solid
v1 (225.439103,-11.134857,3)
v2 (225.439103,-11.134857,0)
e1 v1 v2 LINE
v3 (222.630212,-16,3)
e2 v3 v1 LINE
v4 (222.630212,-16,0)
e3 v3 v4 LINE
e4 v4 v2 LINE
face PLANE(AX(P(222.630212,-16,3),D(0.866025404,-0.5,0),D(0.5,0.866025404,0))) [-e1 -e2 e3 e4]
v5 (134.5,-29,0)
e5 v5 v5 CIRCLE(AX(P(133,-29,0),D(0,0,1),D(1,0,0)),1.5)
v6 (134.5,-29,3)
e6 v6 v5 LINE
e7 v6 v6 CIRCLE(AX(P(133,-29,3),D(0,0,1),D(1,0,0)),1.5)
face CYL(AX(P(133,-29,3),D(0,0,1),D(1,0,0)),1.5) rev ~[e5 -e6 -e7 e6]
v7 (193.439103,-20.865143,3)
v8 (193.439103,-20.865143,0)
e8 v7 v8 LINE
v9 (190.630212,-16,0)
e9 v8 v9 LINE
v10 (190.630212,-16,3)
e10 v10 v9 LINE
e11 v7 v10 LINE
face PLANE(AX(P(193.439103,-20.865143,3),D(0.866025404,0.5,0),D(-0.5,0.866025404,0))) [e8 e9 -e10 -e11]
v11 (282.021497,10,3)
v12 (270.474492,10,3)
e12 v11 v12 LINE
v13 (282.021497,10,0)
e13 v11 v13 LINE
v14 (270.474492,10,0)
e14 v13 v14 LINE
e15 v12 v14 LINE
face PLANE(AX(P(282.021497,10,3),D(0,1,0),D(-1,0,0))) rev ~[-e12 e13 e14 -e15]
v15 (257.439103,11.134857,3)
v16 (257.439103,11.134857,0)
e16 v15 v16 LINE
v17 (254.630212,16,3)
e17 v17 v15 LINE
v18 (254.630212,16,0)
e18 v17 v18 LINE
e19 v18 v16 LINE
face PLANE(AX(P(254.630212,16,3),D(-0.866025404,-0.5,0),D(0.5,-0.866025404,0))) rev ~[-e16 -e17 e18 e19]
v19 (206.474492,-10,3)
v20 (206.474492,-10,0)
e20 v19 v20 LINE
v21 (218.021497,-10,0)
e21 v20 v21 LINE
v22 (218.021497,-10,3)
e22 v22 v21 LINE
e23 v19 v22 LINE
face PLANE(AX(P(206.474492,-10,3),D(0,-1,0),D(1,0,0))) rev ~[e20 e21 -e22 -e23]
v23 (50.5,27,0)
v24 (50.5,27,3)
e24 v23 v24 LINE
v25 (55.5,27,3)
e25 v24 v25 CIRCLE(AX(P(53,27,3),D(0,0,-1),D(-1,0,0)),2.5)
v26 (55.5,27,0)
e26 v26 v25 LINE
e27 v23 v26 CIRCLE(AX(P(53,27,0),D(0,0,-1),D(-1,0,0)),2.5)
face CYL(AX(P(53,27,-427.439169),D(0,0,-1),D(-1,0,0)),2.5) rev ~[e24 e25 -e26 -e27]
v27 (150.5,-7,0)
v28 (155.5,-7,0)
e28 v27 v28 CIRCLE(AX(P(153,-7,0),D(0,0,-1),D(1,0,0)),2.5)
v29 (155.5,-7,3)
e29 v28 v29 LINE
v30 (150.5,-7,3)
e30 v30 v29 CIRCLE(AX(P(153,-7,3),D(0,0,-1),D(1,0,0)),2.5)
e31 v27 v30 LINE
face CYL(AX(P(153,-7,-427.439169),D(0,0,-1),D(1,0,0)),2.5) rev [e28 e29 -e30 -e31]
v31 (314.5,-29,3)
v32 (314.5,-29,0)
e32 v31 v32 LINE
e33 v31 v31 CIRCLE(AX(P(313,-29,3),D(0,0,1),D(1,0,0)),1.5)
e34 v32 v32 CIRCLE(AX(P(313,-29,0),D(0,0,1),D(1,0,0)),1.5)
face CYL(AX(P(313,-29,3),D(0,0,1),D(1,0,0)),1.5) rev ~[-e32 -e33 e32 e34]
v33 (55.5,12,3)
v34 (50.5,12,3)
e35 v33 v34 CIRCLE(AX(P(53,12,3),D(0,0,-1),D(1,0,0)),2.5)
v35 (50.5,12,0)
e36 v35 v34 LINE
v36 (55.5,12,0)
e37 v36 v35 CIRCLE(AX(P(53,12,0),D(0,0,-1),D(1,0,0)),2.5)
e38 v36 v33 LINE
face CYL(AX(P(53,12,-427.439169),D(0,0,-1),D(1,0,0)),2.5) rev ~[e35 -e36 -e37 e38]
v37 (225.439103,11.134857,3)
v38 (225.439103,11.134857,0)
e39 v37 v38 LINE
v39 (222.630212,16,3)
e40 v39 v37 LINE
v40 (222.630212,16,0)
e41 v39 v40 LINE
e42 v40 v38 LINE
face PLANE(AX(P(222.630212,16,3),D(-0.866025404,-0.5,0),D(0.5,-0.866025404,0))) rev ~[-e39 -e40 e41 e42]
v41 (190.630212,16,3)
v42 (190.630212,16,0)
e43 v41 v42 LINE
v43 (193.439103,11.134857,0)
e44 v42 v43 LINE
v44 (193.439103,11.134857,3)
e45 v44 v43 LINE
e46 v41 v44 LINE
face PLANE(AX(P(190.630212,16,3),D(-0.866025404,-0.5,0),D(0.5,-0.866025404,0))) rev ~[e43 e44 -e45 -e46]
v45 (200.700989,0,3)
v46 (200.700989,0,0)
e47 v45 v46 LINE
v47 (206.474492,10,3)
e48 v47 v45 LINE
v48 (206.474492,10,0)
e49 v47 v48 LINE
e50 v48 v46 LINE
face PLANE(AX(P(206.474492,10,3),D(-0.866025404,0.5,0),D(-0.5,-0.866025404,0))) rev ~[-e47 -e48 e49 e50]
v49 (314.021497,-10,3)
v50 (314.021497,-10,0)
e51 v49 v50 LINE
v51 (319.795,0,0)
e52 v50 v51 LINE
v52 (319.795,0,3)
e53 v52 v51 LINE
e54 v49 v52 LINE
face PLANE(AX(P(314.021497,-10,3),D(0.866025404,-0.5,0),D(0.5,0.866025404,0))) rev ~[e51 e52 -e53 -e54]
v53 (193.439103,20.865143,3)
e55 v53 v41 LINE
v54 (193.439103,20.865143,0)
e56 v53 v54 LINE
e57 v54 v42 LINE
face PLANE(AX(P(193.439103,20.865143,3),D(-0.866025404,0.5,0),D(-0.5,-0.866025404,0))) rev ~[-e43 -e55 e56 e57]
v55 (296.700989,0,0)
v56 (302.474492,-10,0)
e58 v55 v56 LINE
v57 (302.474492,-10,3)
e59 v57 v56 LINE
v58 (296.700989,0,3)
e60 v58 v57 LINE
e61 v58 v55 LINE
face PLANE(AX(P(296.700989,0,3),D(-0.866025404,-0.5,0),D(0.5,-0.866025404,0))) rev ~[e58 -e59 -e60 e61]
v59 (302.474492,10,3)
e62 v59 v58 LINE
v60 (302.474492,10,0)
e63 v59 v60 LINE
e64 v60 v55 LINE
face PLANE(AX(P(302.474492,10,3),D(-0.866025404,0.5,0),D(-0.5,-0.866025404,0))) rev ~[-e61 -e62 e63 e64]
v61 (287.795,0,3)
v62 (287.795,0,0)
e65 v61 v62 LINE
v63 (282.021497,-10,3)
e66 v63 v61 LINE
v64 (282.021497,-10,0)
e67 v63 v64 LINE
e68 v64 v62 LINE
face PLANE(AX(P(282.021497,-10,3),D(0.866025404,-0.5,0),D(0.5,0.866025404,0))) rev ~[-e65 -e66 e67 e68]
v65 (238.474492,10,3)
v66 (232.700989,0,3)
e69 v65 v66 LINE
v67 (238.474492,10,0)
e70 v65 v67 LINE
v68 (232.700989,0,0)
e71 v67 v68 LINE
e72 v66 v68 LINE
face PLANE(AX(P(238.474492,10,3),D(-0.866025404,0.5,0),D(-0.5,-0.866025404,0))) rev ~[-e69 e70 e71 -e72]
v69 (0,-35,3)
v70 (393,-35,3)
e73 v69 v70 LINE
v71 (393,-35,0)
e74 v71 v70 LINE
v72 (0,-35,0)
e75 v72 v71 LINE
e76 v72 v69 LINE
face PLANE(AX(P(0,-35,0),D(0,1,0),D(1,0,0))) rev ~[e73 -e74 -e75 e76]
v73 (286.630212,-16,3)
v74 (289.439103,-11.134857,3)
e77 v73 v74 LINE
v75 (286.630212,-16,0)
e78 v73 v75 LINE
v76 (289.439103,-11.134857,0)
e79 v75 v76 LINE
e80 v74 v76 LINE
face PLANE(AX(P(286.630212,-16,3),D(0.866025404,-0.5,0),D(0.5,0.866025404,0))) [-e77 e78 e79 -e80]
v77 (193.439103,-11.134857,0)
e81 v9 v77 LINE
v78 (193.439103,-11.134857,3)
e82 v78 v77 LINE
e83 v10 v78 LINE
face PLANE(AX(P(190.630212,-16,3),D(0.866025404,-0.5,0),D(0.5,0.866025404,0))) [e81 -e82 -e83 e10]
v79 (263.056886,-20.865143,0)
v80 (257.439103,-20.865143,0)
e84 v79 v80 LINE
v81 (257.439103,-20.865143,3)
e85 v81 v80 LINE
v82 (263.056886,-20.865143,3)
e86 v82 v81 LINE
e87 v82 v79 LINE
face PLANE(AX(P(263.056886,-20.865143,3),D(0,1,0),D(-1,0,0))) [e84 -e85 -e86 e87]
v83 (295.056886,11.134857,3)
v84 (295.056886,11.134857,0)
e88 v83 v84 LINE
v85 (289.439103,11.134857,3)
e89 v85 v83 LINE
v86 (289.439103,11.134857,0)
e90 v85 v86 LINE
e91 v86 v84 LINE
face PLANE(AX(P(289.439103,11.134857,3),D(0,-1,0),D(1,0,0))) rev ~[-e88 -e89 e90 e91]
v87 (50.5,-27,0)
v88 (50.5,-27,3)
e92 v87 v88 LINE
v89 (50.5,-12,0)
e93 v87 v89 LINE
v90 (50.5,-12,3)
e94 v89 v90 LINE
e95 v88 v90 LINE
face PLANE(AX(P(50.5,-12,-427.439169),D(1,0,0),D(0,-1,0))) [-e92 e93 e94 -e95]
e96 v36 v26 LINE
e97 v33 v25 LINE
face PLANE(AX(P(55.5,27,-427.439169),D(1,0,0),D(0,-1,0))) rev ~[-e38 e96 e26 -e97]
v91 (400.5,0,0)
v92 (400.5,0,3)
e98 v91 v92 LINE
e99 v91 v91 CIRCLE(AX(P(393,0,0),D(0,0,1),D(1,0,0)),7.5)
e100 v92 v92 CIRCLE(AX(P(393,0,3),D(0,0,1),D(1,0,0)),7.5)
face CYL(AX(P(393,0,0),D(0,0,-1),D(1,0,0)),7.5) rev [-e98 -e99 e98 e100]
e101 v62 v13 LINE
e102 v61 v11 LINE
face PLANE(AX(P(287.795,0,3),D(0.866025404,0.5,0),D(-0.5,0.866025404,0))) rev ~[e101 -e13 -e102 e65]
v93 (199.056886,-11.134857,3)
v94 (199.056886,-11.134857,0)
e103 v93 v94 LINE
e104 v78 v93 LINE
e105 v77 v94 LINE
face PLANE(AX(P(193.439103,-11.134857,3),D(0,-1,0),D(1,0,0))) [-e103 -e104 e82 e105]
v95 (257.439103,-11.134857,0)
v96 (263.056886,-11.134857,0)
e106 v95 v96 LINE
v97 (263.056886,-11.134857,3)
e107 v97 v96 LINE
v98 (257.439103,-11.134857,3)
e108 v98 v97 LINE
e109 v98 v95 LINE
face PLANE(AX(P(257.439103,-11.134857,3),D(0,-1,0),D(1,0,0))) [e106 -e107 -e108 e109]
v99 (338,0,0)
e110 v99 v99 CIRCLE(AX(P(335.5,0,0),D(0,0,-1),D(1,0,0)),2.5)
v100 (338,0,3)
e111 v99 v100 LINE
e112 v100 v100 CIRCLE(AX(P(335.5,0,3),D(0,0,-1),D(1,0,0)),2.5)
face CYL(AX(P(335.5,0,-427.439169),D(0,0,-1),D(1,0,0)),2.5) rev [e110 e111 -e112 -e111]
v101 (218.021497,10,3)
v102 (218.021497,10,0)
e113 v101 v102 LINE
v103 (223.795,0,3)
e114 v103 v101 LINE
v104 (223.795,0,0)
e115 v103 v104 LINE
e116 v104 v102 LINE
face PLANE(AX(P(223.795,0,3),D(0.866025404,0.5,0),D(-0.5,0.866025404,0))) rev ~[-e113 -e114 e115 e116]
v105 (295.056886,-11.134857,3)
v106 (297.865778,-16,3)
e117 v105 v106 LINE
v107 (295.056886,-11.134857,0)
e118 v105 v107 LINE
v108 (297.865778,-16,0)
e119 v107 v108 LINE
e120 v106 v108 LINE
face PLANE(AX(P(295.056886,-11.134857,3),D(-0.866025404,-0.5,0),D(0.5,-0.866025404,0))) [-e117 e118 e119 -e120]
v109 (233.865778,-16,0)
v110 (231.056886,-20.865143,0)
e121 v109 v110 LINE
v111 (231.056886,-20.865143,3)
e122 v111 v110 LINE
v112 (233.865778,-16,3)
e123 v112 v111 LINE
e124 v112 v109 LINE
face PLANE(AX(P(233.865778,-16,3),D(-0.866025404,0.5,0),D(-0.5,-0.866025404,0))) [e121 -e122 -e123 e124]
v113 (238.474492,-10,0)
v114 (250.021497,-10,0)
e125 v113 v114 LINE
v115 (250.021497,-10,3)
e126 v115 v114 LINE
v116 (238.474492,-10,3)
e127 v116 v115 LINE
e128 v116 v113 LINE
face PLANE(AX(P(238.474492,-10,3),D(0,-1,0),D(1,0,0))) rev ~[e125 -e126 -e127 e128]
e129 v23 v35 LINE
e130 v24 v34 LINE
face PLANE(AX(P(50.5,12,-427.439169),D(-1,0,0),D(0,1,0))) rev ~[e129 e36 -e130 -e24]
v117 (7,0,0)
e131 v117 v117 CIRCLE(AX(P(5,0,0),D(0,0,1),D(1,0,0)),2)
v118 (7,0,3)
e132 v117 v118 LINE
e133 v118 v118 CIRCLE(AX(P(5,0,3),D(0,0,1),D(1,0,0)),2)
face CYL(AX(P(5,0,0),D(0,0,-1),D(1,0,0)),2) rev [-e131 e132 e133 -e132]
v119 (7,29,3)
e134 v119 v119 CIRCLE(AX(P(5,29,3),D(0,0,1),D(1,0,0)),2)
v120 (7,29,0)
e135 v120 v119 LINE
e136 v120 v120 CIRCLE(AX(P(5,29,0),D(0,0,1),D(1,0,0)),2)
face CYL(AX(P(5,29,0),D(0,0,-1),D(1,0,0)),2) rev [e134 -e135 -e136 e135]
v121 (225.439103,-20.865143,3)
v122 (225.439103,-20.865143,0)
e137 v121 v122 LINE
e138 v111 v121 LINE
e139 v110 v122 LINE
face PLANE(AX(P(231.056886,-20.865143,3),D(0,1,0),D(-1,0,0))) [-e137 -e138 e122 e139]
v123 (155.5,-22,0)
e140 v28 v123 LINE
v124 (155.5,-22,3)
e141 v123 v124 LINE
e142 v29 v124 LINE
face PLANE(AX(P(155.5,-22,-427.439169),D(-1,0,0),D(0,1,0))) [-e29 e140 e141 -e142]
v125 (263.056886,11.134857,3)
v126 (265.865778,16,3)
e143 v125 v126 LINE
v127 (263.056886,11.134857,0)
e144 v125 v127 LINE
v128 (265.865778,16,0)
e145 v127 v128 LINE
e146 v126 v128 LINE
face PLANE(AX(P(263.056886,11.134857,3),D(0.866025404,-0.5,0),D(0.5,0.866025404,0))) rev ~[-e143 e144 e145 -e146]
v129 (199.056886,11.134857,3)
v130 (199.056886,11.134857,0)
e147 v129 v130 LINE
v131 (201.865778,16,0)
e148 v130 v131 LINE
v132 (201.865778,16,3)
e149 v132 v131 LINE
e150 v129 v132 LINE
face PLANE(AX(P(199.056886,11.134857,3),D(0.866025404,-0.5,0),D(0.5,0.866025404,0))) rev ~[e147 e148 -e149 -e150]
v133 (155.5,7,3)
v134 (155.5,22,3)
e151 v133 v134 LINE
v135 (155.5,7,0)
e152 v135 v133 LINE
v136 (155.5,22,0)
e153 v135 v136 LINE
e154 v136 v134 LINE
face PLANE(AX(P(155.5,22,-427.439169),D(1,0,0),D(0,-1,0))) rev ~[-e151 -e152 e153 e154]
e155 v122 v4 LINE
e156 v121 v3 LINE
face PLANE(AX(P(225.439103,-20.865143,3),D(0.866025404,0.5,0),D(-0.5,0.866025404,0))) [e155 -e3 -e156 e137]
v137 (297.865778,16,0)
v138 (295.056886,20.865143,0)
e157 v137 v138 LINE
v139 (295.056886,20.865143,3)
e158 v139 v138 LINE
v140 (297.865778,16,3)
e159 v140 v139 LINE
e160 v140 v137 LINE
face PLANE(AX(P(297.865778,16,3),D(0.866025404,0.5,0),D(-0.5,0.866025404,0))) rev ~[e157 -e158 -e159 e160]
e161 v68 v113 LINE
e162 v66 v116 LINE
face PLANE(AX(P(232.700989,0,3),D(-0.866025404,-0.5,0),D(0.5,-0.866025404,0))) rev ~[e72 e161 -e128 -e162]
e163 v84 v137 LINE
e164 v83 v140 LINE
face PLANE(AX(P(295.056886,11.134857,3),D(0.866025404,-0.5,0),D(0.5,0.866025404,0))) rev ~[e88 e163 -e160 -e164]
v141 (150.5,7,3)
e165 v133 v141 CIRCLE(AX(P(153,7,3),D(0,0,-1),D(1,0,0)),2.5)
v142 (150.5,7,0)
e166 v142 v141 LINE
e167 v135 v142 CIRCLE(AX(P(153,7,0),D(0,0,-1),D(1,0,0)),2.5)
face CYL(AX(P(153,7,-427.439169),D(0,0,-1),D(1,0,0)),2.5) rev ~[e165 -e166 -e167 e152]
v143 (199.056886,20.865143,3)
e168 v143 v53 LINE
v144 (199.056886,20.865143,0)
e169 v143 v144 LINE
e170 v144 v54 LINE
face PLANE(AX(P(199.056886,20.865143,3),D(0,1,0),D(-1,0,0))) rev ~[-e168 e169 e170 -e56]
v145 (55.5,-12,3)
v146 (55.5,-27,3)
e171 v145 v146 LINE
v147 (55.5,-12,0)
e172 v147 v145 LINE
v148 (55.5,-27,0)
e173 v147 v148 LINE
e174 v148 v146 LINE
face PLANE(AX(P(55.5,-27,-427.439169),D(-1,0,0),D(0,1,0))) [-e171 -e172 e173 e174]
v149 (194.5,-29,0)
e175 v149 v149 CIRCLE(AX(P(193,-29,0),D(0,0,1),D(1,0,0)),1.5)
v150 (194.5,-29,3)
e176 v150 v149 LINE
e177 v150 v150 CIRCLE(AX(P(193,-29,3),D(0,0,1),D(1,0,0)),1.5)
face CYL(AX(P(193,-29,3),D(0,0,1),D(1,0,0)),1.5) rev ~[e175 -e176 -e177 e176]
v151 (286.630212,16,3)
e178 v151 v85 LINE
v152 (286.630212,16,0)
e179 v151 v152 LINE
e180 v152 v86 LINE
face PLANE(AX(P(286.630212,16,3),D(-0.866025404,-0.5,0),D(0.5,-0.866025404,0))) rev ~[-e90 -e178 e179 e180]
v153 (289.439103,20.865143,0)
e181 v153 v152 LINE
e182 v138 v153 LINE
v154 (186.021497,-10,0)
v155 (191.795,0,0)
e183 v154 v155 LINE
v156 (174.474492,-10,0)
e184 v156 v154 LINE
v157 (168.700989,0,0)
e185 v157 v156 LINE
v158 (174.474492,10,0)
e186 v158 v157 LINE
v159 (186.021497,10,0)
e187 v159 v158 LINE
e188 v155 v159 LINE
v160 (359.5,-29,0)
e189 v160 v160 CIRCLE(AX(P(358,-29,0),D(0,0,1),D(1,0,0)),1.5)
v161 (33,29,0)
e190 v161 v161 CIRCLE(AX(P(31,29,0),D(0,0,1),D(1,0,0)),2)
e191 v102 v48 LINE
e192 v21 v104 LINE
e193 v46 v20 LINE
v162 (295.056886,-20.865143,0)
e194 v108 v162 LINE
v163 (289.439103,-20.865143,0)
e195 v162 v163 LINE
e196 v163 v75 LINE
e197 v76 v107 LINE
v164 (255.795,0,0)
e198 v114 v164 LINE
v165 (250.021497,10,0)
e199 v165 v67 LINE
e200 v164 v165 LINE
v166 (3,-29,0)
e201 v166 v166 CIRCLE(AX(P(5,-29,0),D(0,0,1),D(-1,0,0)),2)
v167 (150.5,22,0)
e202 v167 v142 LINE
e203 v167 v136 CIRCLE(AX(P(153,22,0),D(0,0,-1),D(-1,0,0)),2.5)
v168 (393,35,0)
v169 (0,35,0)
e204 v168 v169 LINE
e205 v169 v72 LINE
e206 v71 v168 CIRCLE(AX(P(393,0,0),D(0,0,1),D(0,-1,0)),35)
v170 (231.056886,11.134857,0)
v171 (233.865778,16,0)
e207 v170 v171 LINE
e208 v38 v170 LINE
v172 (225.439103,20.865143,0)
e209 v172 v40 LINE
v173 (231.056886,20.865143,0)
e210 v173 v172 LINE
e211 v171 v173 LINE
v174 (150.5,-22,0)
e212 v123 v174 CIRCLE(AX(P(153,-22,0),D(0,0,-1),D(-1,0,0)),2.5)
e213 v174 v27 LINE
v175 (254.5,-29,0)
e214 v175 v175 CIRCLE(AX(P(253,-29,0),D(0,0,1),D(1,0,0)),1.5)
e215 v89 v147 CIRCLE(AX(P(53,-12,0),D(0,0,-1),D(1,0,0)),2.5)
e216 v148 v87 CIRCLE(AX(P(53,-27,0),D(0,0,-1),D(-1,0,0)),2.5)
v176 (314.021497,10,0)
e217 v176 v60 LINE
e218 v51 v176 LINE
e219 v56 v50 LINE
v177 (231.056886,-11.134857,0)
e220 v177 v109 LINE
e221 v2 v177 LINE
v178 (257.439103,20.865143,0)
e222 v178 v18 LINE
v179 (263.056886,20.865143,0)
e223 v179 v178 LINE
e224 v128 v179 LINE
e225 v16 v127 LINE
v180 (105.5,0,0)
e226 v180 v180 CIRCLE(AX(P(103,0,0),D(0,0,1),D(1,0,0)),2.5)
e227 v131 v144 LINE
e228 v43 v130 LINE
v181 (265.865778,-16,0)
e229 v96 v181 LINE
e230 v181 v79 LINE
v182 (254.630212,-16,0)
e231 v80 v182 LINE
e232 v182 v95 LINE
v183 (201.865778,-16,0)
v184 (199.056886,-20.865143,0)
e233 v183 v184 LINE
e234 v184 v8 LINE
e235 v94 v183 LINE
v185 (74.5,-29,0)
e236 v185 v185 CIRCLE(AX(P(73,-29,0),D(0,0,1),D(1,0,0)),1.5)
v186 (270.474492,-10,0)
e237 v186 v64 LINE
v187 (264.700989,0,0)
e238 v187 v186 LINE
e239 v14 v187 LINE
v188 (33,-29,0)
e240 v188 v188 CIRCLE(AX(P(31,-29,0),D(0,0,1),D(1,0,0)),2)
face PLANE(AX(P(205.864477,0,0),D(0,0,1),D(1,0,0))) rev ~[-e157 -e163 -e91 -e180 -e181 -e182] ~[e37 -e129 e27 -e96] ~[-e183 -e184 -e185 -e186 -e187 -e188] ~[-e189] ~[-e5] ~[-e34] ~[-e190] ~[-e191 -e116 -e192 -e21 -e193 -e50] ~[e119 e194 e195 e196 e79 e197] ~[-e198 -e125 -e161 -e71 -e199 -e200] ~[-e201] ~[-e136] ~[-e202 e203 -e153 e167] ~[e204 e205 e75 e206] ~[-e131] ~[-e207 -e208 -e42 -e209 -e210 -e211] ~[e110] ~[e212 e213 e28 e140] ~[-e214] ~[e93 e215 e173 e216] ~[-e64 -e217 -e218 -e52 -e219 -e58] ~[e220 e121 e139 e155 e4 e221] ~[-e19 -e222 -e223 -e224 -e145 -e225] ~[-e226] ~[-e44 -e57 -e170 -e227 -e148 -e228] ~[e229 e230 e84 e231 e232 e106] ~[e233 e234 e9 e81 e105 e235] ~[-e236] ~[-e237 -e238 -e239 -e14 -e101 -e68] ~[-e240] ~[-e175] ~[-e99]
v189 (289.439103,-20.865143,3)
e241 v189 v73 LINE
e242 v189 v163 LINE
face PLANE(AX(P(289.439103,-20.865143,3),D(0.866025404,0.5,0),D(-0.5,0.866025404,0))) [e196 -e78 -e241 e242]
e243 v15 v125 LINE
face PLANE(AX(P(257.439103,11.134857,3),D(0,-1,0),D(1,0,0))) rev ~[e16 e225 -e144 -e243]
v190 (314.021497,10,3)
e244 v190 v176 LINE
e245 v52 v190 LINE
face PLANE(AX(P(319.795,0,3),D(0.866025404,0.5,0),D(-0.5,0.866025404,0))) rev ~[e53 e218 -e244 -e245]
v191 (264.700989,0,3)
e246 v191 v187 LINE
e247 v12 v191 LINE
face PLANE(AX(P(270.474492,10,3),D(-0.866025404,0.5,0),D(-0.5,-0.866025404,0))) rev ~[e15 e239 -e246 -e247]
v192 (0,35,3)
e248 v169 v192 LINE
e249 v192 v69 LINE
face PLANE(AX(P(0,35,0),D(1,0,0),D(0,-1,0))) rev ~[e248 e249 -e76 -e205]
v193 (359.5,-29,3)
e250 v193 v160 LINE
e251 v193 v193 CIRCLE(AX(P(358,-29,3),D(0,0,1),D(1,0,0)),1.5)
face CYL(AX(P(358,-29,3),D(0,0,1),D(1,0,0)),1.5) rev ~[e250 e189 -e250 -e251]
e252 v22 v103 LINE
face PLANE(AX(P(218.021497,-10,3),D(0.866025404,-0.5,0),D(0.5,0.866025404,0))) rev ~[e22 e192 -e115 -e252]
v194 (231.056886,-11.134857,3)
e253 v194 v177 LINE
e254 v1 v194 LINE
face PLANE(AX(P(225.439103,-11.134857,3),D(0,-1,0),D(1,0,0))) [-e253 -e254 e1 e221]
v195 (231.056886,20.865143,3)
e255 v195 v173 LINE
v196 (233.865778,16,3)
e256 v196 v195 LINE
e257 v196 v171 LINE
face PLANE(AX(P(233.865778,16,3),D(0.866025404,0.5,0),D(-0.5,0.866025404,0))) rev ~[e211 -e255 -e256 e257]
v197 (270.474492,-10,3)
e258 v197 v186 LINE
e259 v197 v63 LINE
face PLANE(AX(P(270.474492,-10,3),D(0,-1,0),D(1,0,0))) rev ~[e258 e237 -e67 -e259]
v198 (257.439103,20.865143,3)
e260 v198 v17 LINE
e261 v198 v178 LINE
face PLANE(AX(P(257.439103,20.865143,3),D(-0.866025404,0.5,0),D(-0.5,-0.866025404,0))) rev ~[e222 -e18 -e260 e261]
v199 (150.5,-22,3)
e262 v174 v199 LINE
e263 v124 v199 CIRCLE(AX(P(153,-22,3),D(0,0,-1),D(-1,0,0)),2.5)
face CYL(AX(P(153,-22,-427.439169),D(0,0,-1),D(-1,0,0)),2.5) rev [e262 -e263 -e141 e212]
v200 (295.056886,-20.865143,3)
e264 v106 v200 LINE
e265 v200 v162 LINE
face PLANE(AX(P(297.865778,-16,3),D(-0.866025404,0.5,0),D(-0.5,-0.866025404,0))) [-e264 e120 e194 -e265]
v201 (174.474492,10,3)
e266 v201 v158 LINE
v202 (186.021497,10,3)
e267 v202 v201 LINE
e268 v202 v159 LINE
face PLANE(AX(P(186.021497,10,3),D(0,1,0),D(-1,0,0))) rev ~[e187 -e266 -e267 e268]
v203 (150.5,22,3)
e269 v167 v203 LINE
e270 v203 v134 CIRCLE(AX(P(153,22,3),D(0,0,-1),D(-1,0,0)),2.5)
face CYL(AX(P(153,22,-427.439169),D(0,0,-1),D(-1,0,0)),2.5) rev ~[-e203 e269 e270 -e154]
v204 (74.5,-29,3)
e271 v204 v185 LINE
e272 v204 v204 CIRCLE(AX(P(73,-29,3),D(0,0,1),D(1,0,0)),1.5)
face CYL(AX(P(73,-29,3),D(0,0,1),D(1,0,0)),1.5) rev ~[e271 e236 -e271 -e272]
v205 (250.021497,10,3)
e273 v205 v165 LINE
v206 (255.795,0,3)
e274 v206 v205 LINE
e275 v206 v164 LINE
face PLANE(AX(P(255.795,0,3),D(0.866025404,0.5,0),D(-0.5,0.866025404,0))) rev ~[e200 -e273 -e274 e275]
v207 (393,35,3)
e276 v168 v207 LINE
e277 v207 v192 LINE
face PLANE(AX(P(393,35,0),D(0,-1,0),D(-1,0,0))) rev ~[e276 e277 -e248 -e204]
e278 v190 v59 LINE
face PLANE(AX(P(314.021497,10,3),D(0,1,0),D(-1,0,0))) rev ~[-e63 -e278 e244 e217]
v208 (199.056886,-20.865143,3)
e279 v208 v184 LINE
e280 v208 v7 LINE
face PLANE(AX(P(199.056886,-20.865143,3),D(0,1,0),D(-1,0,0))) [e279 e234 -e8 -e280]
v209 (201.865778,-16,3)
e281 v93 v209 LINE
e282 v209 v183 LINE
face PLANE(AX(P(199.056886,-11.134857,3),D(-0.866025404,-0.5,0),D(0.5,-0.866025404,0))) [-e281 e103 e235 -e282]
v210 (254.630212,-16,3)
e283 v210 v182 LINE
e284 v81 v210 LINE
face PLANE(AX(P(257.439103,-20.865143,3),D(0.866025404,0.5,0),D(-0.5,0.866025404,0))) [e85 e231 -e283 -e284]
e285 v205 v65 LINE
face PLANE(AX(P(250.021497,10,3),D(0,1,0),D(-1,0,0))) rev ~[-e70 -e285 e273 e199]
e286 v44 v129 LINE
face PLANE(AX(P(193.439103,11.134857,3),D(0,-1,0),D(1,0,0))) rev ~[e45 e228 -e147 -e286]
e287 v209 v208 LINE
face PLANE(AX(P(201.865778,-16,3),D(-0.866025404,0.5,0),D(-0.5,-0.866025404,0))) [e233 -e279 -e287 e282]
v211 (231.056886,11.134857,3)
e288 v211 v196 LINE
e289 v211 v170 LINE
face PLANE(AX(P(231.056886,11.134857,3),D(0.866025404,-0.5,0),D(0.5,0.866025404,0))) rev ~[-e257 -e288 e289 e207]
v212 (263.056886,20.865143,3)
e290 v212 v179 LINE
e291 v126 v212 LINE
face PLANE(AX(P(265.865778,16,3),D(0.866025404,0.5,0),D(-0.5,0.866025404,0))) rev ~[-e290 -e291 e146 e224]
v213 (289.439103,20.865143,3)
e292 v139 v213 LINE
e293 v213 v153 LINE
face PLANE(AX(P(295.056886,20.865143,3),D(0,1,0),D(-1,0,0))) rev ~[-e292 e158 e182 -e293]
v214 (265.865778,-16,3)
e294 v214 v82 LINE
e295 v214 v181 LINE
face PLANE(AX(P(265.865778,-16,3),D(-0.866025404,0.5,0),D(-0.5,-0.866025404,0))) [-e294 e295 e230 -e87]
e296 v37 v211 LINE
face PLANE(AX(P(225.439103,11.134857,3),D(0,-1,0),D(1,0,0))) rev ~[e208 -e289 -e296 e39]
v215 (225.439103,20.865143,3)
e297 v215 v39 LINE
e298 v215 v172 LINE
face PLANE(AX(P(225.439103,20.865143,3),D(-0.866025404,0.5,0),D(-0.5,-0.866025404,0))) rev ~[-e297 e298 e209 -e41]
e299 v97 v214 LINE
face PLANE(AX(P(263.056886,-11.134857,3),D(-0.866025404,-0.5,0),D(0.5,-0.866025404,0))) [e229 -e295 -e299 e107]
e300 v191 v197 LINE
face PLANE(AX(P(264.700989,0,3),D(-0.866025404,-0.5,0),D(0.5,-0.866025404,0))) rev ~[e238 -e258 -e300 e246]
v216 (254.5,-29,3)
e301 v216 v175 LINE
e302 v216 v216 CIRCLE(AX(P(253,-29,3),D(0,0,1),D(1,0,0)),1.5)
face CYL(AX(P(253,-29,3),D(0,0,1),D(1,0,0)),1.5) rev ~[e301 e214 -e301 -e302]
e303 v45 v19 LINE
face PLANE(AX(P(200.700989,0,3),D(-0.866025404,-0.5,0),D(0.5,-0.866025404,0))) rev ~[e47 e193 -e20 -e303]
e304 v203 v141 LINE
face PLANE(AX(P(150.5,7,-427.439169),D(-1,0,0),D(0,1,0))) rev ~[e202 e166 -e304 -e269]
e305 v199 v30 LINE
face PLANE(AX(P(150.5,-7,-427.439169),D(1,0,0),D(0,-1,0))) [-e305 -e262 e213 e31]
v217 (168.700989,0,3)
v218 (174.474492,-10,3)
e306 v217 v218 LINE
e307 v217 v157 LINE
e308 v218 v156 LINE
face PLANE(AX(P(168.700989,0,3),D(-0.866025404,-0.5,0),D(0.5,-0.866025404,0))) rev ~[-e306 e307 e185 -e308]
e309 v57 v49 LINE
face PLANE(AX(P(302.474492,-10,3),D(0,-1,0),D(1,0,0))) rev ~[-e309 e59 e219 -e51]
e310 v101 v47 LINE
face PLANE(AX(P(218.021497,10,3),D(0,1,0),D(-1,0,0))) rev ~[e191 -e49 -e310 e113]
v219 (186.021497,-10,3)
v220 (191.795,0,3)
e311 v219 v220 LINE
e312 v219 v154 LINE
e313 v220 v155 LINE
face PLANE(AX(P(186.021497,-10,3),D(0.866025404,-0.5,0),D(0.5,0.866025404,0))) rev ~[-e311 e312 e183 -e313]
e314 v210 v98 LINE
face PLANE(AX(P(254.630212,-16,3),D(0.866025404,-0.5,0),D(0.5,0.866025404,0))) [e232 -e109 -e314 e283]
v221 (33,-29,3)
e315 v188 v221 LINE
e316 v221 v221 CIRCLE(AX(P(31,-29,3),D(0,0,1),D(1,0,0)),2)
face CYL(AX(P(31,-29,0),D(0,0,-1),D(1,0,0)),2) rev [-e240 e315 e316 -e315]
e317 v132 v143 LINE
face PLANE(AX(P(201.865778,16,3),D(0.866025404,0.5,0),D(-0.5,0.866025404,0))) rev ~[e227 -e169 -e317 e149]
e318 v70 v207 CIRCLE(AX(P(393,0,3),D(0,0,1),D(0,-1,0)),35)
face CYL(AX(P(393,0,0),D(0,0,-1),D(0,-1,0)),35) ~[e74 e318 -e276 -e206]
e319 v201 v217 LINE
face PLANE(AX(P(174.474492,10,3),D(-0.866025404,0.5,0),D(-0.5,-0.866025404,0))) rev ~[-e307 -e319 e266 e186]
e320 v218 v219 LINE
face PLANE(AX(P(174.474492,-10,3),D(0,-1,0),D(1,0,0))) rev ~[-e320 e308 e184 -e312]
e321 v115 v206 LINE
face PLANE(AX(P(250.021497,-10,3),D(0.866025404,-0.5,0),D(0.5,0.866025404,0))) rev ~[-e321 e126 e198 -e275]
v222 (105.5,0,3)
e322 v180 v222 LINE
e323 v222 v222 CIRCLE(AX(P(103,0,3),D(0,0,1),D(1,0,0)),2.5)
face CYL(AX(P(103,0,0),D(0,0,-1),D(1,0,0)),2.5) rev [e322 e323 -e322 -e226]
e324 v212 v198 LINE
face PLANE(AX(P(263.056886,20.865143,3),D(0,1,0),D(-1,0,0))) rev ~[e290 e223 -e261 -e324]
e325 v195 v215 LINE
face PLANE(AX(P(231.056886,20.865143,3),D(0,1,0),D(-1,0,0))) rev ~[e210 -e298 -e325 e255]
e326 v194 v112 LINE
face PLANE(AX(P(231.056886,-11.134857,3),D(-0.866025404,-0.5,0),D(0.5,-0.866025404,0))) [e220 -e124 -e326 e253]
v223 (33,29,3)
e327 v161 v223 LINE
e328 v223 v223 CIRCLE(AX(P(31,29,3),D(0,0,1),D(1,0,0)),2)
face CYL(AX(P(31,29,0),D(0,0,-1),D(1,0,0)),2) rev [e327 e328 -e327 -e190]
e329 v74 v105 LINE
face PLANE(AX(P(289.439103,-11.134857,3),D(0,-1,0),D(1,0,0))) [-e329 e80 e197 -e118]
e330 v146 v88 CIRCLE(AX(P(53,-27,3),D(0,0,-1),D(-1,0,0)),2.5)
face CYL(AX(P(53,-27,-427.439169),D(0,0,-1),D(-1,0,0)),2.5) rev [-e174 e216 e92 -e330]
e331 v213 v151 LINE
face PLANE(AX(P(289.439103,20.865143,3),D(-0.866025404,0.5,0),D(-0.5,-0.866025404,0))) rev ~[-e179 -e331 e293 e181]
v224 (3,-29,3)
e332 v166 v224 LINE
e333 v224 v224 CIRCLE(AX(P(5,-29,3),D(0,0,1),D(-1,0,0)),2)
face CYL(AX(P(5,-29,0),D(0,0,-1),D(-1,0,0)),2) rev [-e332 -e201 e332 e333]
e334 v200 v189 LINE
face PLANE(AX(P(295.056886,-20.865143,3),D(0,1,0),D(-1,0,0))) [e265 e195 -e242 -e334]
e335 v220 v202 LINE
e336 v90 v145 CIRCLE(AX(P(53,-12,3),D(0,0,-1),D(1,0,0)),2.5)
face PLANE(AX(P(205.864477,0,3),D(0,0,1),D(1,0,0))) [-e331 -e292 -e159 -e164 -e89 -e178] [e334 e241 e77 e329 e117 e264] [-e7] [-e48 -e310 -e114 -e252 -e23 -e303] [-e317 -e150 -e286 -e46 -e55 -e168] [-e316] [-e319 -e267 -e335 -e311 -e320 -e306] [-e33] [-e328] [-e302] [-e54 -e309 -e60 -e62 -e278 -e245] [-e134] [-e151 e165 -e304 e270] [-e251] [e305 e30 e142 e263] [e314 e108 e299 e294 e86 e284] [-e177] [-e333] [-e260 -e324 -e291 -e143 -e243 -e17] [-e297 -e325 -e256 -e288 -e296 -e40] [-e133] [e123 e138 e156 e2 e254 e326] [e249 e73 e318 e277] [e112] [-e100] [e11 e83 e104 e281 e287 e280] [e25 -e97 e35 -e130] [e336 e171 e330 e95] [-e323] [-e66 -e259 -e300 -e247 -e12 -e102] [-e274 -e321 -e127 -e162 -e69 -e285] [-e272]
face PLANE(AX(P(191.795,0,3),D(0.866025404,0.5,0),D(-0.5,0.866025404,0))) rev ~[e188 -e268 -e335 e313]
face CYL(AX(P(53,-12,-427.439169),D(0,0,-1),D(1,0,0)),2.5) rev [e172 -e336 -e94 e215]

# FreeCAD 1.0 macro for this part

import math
import FreeCAD as App
import Part
import Sketcher
Q = App.Units.Quantity


def add_polygon(sketch, points):
    """Adds a closed chain of lines whose ends are joined by coincident constraints."""
    first, n = sketch.GeometryCount, len(points)
    for a, b in zip(points, points[1:] + points[:1]):
        sketch.addGeometry(Part.LineSegment(App.Vector(*a, 0), App.Vector(*b, 0)), False)
    for i in range(n):
        sketch.addConstraint(Sketcher.Constraint("Coincident", first + i, 2, first + (i + 1) % n, 1))

doc = App.newDocument("Part")
body = doc.addObject("PartDesign::Body", "Body")

sketch1 = body.newObject("Sketcher::SketchObject", "Sketch")
sketch1.AttachmentSupport = (doc.getObject("XY_Plane"), [""])
sketch1.MapMode = "FlatFace"
sketch1.addGeometry(Part.LineSegment(App.Vector(0, 35, 0), App.Vector(0, -35, 0)), False)
sketch1.addGeometry(Part.LineSegment(App.Vector(0, -35, 0), App.Vector(393, -35, 0)), False)
sketch1.addGeometry(Part.ArcOfCircle(Part.Circle(App.Vector(393, 0, 0), App.Vector(0, 0, 1), 35), math.radians(-90), math.radians(90)), False)
sketch1.addGeometry(Part.LineSegment(App.Vector(393, 35, 0), App.Vector(0, 35, 0)), False)
sketch1.addGeometry(Part.Circle(App.Vector(5, -29, 0), App.Vector(0, 0, 1), 2), False)
sketch1.addGeometry(Part.Circle(App.Vector(31, -29, 0), App.Vector(0, 0, 1), 2), False)
sketch1.addGeometry(Part.Circle(App.Vector(5, 0, 0), App.Vector(0, 0, 1), 2), False)
sketch1.addGeometry(Part.Circle(App.Vector(103, 0, 0), App.Vector(0, 0, 1), 2.5), False)
sketch1.addGeometry(Part.Circle(App.Vector(5, 29, 0), App.Vector(0, 0, 1), 2), False)
sketch1.addGeometry(Part.Circle(App.Vector(31, 29, 0), App.Vector(0, 0, 1), 2), False)
sketch1.addGeometry(Part.Circle(App.Vector(393, 0, 0), App.Vector(0, 0, 1), 7.5), False)
sketch1.addConstraint(Sketcher.Constraint("Coincident", 0, 2, 1, 1))
sketch1.addConstraint(Sketcher.Constraint("Tangent", 1, 2, 2, 1))
sketch1.addConstraint(Sketcher.Constraint("Tangent", 2, 2, 3, 1))
sketch1.addConstraint(Sketcher.Constraint("Coincident", 3, 2, 0, 1))
sketch1.addConstraint(Sketcher.Constraint("Vertical", 0))
sketch1.addConstraint(Sketcher.Constraint("Horizontal", 1))
sketch1.addConstraint(Sketcher.Constraint("Horizontal", 3))
sketch1.addConstraint(Sketcher.Constraint("Coincident", 10, 3, 2, 3))
sketch1.addConstraint(Sketcher.Constraint("Equal", 4, 5))
sketch1.addConstraint(Sketcher.Constraint("Equal", 5, 6))
sketch1.addConstraint(Sketcher.Constraint("Equal", 6, 8))
sketch1.addConstraint(Sketcher.Constraint("Equal", 8, 9))
sketch1.addConstraint(Sketcher.Constraint("Symmetric", 0, 2, 3, 2, -1, 1))
sketch1.addConstraint(Sketcher.Constraint("Symmetric", 4, 3, 8, 3, -1))
sketch1.addConstraint(Sketcher.Constraint("Symmetric", 5, 3, 9, 3, -1))
sketch1.addConstraint(Sketcher.Constraint("PointOnObject", 6, 3, -1))
sketch1.addConstraint(Sketcher.Constraint("PointOnObject", 7, 3, -1))
sketch1.addConstraint(Sketcher.Constraint("Horizontal", 4, 3, 5, 3))
sketch1.addConstraint(Sketcher.Constraint("Vertical", 4, 3, 6, 3))
sketch1.addConstraint(Sketcher.Constraint("Diameter", 4, Q("4 mm")))
sketch1.addConstraint(Sketcher.Constraint("Diameter", 7, Q("5 mm")))
sketch1.addConstraint(Sketcher.Constraint("Diameter", 10, Q("15 mm")))
sketch1.addConstraint(Sketcher.Constraint("Radius", 2, Q("35 mm")))
sketch1.addConstraint(Sketcher.Constraint("DistanceX", 1, 1, 1, 2, Q("393 mm")))
sketch1.addConstraint(Sketcher.Constraint("DistanceX", -1, 1, 4, 3, Q("5 mm")))
sketch1.addConstraint(Sketcher.Constraint("DistanceY", 4, 3, -1, 1, Q("29 mm")))
sketch1.addConstraint(Sketcher.Constraint("DistanceX", -1, 1, 5, 3, Q("31 mm")))
sketch1.addConstraint(Sketcher.Constraint("DistanceX", -1, 1, 7, 3, Q("103 mm")))
pad1 = body.newObject("PartDesign::Pad", "Pad")
pad1.Profile = sketch1
pad1.Length = 3

sketch2 = body.newObject("Sketcher::SketchObject", "Sketch001")
sketch2.AttachmentSupport = (doc.getObject("XY_Plane"), [""])
sketch2.MapMode = "FlatFace"
sketch2.AttachmentOffset = App.Placement(App.Vector(0, 0, 3), App.Rotation())
sketch2.addGeometry(Part.LineSegment(App.Vector(55.5, 12, 0), App.Vector(55.5, 27, 0)), False)
sketch2.addGeometry(Part.ArcOfCircle(Part.Circle(App.Vector(53, 27, 0), App.Vector(0, 0, 1), 2.5), math.radians(0), math.radians(180)), False)
sketch2.addGeometry(Part.LineSegment(App.Vector(50.5, 27, 0), App.Vector(50.5, 12, 0)), False)
sketch2.addGeometry(Part.ArcOfCircle(Part.Circle(App.Vector(53, 12, 0), App.Vector(0, 0, 1), 2.5), math.radians(180), math.radians(360)), False)
sketch2.addGeometry(Part.LineSegment(App.Vector(155.5, 7, 0), App.Vector(155.5, 22, 0)), False)
sketch2.addGeometry(Part.ArcOfCircle(Part.Circle(App.Vector(153, 22, 0), App.Vector(0, 0, 1), 2.5), math.radians(0), math.radians(180)), False)
sketch2.addGeometry(Part.LineSegment(App.Vector(150.5, 22, 0), App.Vector(150.5, 7, 0)), False)
sketch2.addGeometry(Part.ArcOfCircle(Part.Circle(App.Vector(153, 7, 0), App.Vector(0, 0, 1), 2.5), math.radians(180), math.radians(360)), False)
sketch2.addGeometry(Part.LineSegment(App.Vector(155.5, -22, 0), App.Vector(155.5, -7, 0)), False)
sketch2.addGeometry(Part.ArcOfCircle(Part.Circle(App.Vector(153, -7, 0), App.Vector(0, 0, 1), 2.5), math.radians(0), math.radians(180)), False)
sketch2.addGeometry(Part.LineSegment(App.Vector(150.5, -7, 0), App.Vector(150.5, -22, 0)), False)
sketch2.addGeometry(Part.ArcOfCircle(Part.Circle(App.Vector(153, -22, 0), App.Vector(0, 0, 1), 2.5), math.radians(180), math.radians(360)), False)
sketch2.addGeometry(Part.LineSegment(App.Vector(55.5, -27, 0), App.Vector(55.5, -12, 0)), False)
sketch2.addGeometry(Part.ArcOfCircle(Part.Circle(App.Vector(53, -12, 0), App.Vector(0, 0, 1), 2.5), math.radians(0), math.radians(180)), False)
sketch2.addGeometry(Part.LineSegment(App.Vector(50.5, -12, 0), App.Vector(50.5, -27, 0)), False)
sketch2.addGeometry(Part.ArcOfCircle(Part.Circle(App.Vector(53, -27, 0), App.Vector(0, 0, 1), 2.5), math.radians(180), math.radians(360)), False)
sketch2.addConstraint(Sketcher.Constraint("Tangent", 0, 2, 1, 1))
sketch2.addConstraint(Sketcher.Constraint("Tangent", 1, 2, 2, 1))
sketch2.addConstraint(Sketcher.Constraint("Tangent", 2, 2, 3, 1))
sketch2.addConstraint(Sketcher.Constraint("Tangent", 3, 2, 0, 1))
sketch2.addConstraint(Sketcher.Constraint("Tangent", 4, 2, 5, 1))
sketch2.addConstraint(Sketcher.Constraint("Tangent", 5, 2, 6, 1))
sketch2.addConstraint(Sketcher.Constraint("Tangent", 6, 2, 7, 1))
sketch2.addConstraint(Sketcher.Constraint("Tangent", 7, 2, 4, 1))
sketch2.addConstraint(Sketcher.Constraint("Tangent", 8, 2, 9, 1))
sketch2.addConstraint(Sketcher.Constraint("Tangent", 9, 2, 10, 1))
sketch2.addConstraint(Sketcher.Constraint("Tangent", 10, 2, 11, 1))
sketch2.addConstraint(Sketcher.Constraint("Tangent", 11, 2, 8, 1))
sketch2.addConstraint(Sketcher.Constraint("Tangent", 12, 2, 13, 1))
sketch2.addConstraint(Sketcher.Constraint("Tangent", 13, 2, 14, 1))
sketch2.addConstraint(Sketcher.Constraint("Tangent", 14, 2, 15, 1))
sketch2.addConstraint(Sketcher.Constraint("Tangent", 15, 2, 12, 1))
sketch2.addConstraint(Sketcher.Constraint("Vertical", 0))
sketch2.addConstraint(Sketcher.Constraint("Vertical", 2))
sketch2.addConstraint(Sketcher.Constraint("Vertical", 4))
sketch2.addConstraint(Sketcher.Constraint("Vertical", 6))
sketch2.addConstraint(Sketcher.Constraint("Vertical", 8))
sketch2.addConstraint(Sketcher.Constraint("Vertical", 10))
sketch2.addConstraint(Sketcher.Constraint("Vertical", 12))
sketch2.addConstraint(Sketcher.Constraint("Vertical", 14))
sketch2.addConstraint(Sketcher.Constraint("Equal", 3, 5))
sketch2.addConstraint(Sketcher.Constraint("Equal", 7, 9))
sketch2.addConstraint(Sketcher.Constraint("Equal", 11, 13))
sketch2.addConstraint(Sketcher.Constraint("Symmetric", 7, 3, 9, 3, -1))
sketch2.addConstraint(Sketcher.Constraint("Symmetric", 3, 3, 13, 3, -1))
sketch2.addConstraint(Sketcher.Constraint("Equal", 2, 4))
sketch2.addConstraint(Sketcher.Constraint("Equal", 6, 8))
sketch2.addConstraint(Sketcher.Constraint("Equal", 10, 12))
sketch2.addConstraint(Sketcher.Constraint("Radius", 1, Q("2.5 mm")))
sketch2.addConstraint(Sketcher.Constraint("DistanceY", 0, 1, 0, 2, Q("15 mm")))
sketch2.addConstraint(Sketcher.Constraint("DistanceX", -1, 1, 1, 3, Q("53 mm")))
sketch2.addConstraint(Sketcher.Constraint("DistanceY", -1, 1, 1, 3, Q("27 mm")))
sketch2.addConstraint(Sketcher.Constraint("DistanceX", -1, 1, 5, 3, Q("153 mm")))
sketch2.addConstraint(Sketcher.Constraint("DistanceY", -1, 1, 5, 3, Q("22 mm")))
pocket1 = body.newObject("PartDesign::Pocket", "Pocket")
pocket1.Profile = sketch2
pocket1.Type = "ThroughAll"
pocket1.Midplane = True

sketch3 = body.newObject("Sketcher::SketchObject", "Sketch002")
sketch3.AttachmentSupport = (doc.getObject("XY_Plane"), [""])
sketch3.MapMode = "FlatFace"
sketch3.AttachmentOffset = App.Placement(App.Vector(0, 0, 3), App.Rotation())
sketch3.addGeometry(Part.Circle(App.Vector(335.5, 0, 0), App.Vector(0, 0, 1), 2.5), False)
sketch3.addConstraint(Sketcher.Constraint("PointOnObject", 0, 3, -1))
sketch3.addConstraint(Sketcher.Constraint("Diameter", 0, Q("5 mm")))
sketch3.addConstraint(Sketcher.Constraint("DistanceX", -1, 1, 0, 3, Q("335.5 mm")))
pocket2 = body.newObject("PartDesign::Pocket", "Pocket001")
pocket2.Profile = sketch3
pocket2.Type = "ThroughAll"
pocket2.Midplane = True

sketch4 = body.newObject("Sketcher::SketchObject", "Sketch003")
sketch4.AttachmentSupport = (doc.getObject("XY_Plane"), [""])
sketch4.MapMode = "FlatFace"
sketch4.AttachmentOffset = App.Placement(App.Vector(0, 0, 3), App.Rotation())
sketch4.addGeometry(Part.Circle(App.Vector(73, -29, 0), App.Vector(0, 0, 1), 1.5), False)
sketch4.addGeometry(Part.Circle(App.Vector(133, -29, 0), App.Vector(0, 0, 1), 1.5), False)
sketch4.addGeometry(Part.Circle(App.Vector(193, -29, 0), App.Vector(0, 0, 1), 1.5), False)
sketch4.addGeometry(Part.Circle(App.Vector(253, -29, 0), App.Vector(0, 0, 1), 1.5), False)
sketch4.addGeometry(Part.Circle(App.Vector(313, -29, 0), App.Vector(0, 0, 1), 1.5), False)
sketch4.addGeometry(Part.Circle(App.Vector(358, -29, 0), App.Vector(0, 0, 1), 1.5), False)
sketch4.addConstraint(Sketcher.Constraint("Equal", 0, 1))
sketch4.addConstraint(Sketcher.Constraint("Equal", 1, 2))
sketch4.addConstraint(Sketcher.Constraint("Equal", 2, 3))
sketch4.addConstraint(Sketcher.Constraint("Equal", 3, 4))
sketch4.addConstraint(Sketcher.Constraint("Equal", 4, 5))
sketch4.addConstraint(Sketcher.Constraint("Horizontal", 0, 3, 1, 3))
sketch4.addConstraint(Sketcher.Constraint("Horizontal", 1, 3, 2, 3))
sketch4.addConstraint(Sketcher.Constraint("Horizontal", 2, 3, 3, 3))
sketch4.addConstraint(Sketcher.Constraint("Horizontal", 3, 3, 4, 3))
sketch4.addConstraint(Sketcher.Constraint("Horizontal", 4, 3, 5, 3))
sketch4.addConstraint(Sketcher.Constraint("Diameter", 0, Q("3 mm")))
sketch4.addConstraint(Sketcher.Constraint("DistanceX", -1, 1, 0, 3, Q("73 mm")))
sketch4.addConstraint(Sketcher.Constraint("DistanceY", 0, 3, -1, 1, Q("29 mm")))
sketch4.addConstraint(Sketcher.Constraint("DistanceX", -1, 1, 1, 3, Q("133 mm")))
sketch4.addConstraint(Sketcher.Constraint("DistanceX", -1, 1, 2, 3, Q("193 mm")))
sketch4.addConstraint(Sketcher.Constraint("DistanceX", -1, 1, 3, 3, Q("253 mm")))
sketch4.addConstraint(Sketcher.Constraint("DistanceX", -1, 1, 4, 3, Q("313 mm")))
sketch4.addConstraint(Sketcher.Constraint("DistanceX", -1, 1, 5, 3, Q("358 mm")))
pocket3 = body.newObject("PartDesign::Pocket", "Pocket002")
pocket3.Profile = sketch4
pocket3.Length = 3

sketch5 = body.newObject("Sketcher::SketchObject", "Sketch004")
sketch5.AttachmentSupport = (doc.getObject("XY_Plane"), [""])
sketch5.MapMode = "FlatFace"
sketch5.AttachmentOffset = App.Placement(App.Vector(0, 0, 3), App.Rotation())
add_polygon(sketch5, [(224, 0), (218, 10), (206, 10), (201, 0), (206, -10), (218, -10)])
add_polygon(sketch5, [(192, 0), (186, 10), (174, 10), (169, 0), (174, -10), (186, -10)])
add_polygon(sketch5, [(256, 0), (250, 10), (238, 10), (233, 0), (238, -10), (250, -10)])
add_polygon(sketch5, [(288, 0), (282, 10), (270, 10), (265, 0), (270, -10), (282, -10)])
add_polygon(sketch5, [(234, 16), (231, 21), (225, 21), (223, 16), (225, 11), (231, 11)])
add_polygon(sketch5, [(202, 16), (199, 21), (193, 21), (191, 16), (193, 11), (199, 11)])
add_polygon(sketch5, [(266, 16), (263, 21), (257, 21), (255, 16), (257, 11), (263, 11)])
add_polygon(sketch5, [(320, 0), (314, 10), (302, 10), (297, 0), (302, -10), (314, -10)])
add_polygon(sketch5, [(298, 16), (295, 21), (289, 21), (287, 16), (289, 11), (295, 11)])
add_polygon(sketch5, [(298, -16), (295, -11), (289, -11), (287, -16), (289, -21), (295, -21)])
add_polygon(sketch5, [(266, -16), (263, -11), (257, -11), (255, -16), (257, -21), (263, -21)])
add_polygon(sketch5, [(234, -16), (231, -11), (225, -11), (223, -16), (225, -21), (231, -21)])
add_polygon(sketch5, [(202, -16), (199, -11), (193, -11), (191, -16), (193, -21), (199, -21)])
sketch5.addConstraint(Sketcher.Constraint("Horizontal", 1))
sketch5.addConstraint(Sketcher.Constraint("Horizontal", 4))
sketch5.addConstraint(Sketcher.Constraint("Horizontal", 7))
sketch5.addConstraint(Sketcher.Constraint("Horizontal", 10))
sketch5.addConstraint(Sketcher.Constraint("Horizontal", 13))
sketch5.addConstraint(Sketcher.Constraint("Horizontal", 16))
sketch5.addConstraint(Sketcher.Constraint("Horizontal", 19))
sketch5.addConstraint(Sketcher.Constraint("Horizontal", 22))
sketch5.addConstraint(Sketcher.Constraint("Horizontal", 25))
sketch5.addConstraint(Sketcher.Constraint("Horizontal", 28))
sketch5.addConstraint(Sketcher.Constraint("Horizontal", 31))
sketch5.addConstraint(Sketcher.Constraint("Horizontal", 34))
sketch5.addConstraint(Sketcher.Constraint("Horizontal", 37))
sketch5.addConstraint(Sketcher.Constraint("Horizontal", 40))
sketch5.addConstraint(Sketcher.Constraint("Horizontal", 43))
sketch5.addConstraint(Sketcher.Constraint("Horizontal", 46))
sketch5.addConstraint(Sketcher.Constraint("Horizontal", 49))
sketch5.addConstraint(Sketcher.Constraint("Horizontal", 52))
sketch5.addConstraint(Sketcher.Constraint("Horizontal", 55))
sketch5.addConstraint(Sketcher.Constraint("Horizontal", 58))
sketch5.addConstraint(Sketcher.Constraint("Horizontal", 61))
sketch5.addConstraint(Sketcher.Constraint("Horizontal", 64))
sketch5.addConstraint(Sketcher.Constraint("Horizontal", 67))
sketch5.addConstraint(Sketcher.Constraint("Horizontal", 70))
sketch5.addConstraint(Sketcher.Constraint("Horizontal", 73))
sketch5.addConstraint(Sketcher.Constraint("Horizontal", 76))
sketch5.addConstraint(Sketcher.Constraint("Symmetric", 1, 2, 3, 2, -1))
sketch5.addConstraint(Sketcher.Constraint("Symmetric", 7, 2, 9, 2, -1))
sketch5.addConstraint(Sketcher.Constraint("Symmetric", 13, 2, 15, 2, -1))
sketch5.addConstraint(Sketcher.Constraint("Symmetric", 19, 2, 21, 2, -1))
sketch5.addConstraint(Sketcher.Constraint("Symmetric", 43, 2, 45, 2, -1))
sketch5.addConstraint(Sketcher.Constraint("Symmetric", 52, 2, 54, 2, -1))
sketch5.addConstraint(Sketcher.Constraint("Symmetric", 50, 2, 56, 2, -1))
sketch5.addConstraint(Sketcher.Constraint("Symmetric", 49, 2, 57, 2, -1))
sketch5.addConstraint(Sketcher.Constraint("Symmetric", 53, 2, 59, 2, -1))
sketch5.addConstraint(Sketcher.Constraint("Symmetric", 40, 2, 60, 2, -1))
sketch5.addConstraint(Sketcher.Constraint("Symmetric", 38, 2, 62, 2, -1))
sketch5.addConstraint(Sketcher.Constraint("Symmetric", 37, 2, 63, 2, -1))
sketch5.addConstraint(Sketcher.Constraint("Symmetric", 41, 2, 65, 2, -1))
sketch5.addConstraint(Sketcher.Constraint("Symmetric", 28, 2, 66, 2, -1))
sketch5.addConstraint(Sketcher.Constraint("Symmetric", 26, 2, 68, 2, -1))
sketch5.addConstraint(Sketcher.Constraint("Symmetric", 25, 2, 69, 2, -1))
sketch5.addConstraint(Sketcher.Constraint("Symmetric", 29, 2, 71, 2, -1))
sketch5.addConstraint(Sketcher.Constraint("Symmetric", 34, 2, 72, 2, -1))
sketch5.addConstraint(Sketcher.Constraint("Symmetric", 32, 2, 74, 2, -1))
sketch5.addConstraint(Sketcher.Constraint("Symmetric", 31, 2, 75, 2, -1))
sketch5.addConstraint(Sketcher.Constraint("Symmetric", 35, 2, 77, 2, -1))
sketch5.addConstraint(Sketcher.Constraint("PointOnObject", 2, 2, -1))
sketch5.addConstraint(Sketcher.Constraint("PointOnObject", 5, 2, -1))
sketch5.addConstraint(Sketcher.Constraint("PointOnObject", 8, 2, -1))
sketch5.addConstraint(Sketcher.Constraint("PointOnObject", 11, 2, -1))
sketch5.addConstraint(Sketcher.Constraint("PointOnObject", 14, 2, -1))
sketch5.addConstraint(Sketcher.Constraint("PointOnObject", 17, 2, -1))
sketch5.addConstraint(Sketcher.Constraint("PointOnObject", 20, 2, -1))
sketch5.addConstraint(Sketcher.Constraint("PointOnObject", 23, 2, -1))
sketch5.addConstraint(Sketcher.Constraint("PointOnObject", 44, 2, -1))
sketch5.addConstraint(Sketcher.Constraint("PointOnObject", 47, 2, -1))
sketch5.addConstraint(Sketcher.Constraint("Parallel", 0, 3))
sketch5.addConstraint(Sketcher.Constraint("Parallel", 2, 5))
sketch5.addConstraint(Sketcher.Constraint("Parallel", 3, 6))
sketch5.addConstraint(Sketcher.Constraint("Parallel", 5, 8))
sketch5.addConstraint(Sketcher.Constraint("Parallel", 8, 11))
sketch5.addConstraint(Sketcher.Constraint("Parallel", 9, 12))
sketch5.addConstraint(Sketcher.Constraint("Parallel", 11, 14))
sketch5.addConstraint(Sketcher.Constraint("Parallel", 14, 17))
sketch5.addConstraint(Sketcher.Constraint("Parallel", 15, 18))
sketch5.addConstraint(Sketcher.Constraint("Parallel", 17, 20))
sketch5.addConstraint(Sketcher.Constraint("Parallel", 20, 23))
sketch5.addConstraint(Sketcher.Constraint("Parallel", 21, 24))
sketch5.addConstraint(Sketcher.Constraint("Parallel", 23, 26))
sketch5.addConstraint(Sketcher.Constraint("Parallel", 24, 27))
sketch5.addConstraint(Sketcher.Constraint("Parallel", 26, 29))
sketch5.addConstraint(Sketcher.Constraint("Parallel", 27, 30))
sketch5.addConstraint(Sketcher.Constraint("Parallel", 29, 32))
sketch5.addConstraint(Sketcher.Constraint("Parallel", 30, 33))
sketch5.addConstraint(Sketcher.Constraint("Parallel", 32, 35))
sketch5.addConstraint(Sketcher.Constraint("Parallel", 33, 36))
sketch5.addConstraint(Sketcher.Constraint("Parallel", 35, 38))
sketch5.addConstraint(Sketcher.Constraint("Parallel", 36, 39))
sketch5.addConstraint(Sketcher.Constraint("Parallel", 38, 41))
sketch5.addConstraint(Sketcher.Constraint("Parallel", 39, 42))
sketch5.addConstraint(Sketcher.Constraint("Parallel", 41, 44))
sketch5.addConstraint(Sketcher.Constraint("Parallel", 44, 47))
sketch5.addConstraint(Sketcher.Constraint("Parallel", 45, 48))
sketch5.addConstraint(Sketcher.Constraint("Parallel", 47, 50))
sketch5.addConstraint(Sketcher.Constraint("Parallel", 48, 51))
sketch5.addConstraint(Sketcher.Constraint("Parallel", 50, 53))
sketch5.addConstraint(Sketcher.Constraint("Parallel", 53, 56))
sketch5.addConstraint(Sketcher.Constraint("Parallel", 56, 59))
sketch5.addConstraint(Sketcher.Constraint("Parallel", 59, 62))
sketch5.addConstraint(Sketcher.Constraint("Parallel", 62, 65))
sketch5.addConstraint(Sketcher.Constraint("Parallel", 65, 68))
sketch5.addConstraint(Sketcher.Constraint("Parallel", 68, 71))
sketch5.addConstraint(Sketcher.Constraint("Parallel", 71, 74))
sketch5.addConstraint(Sketcher.Constraint("Parallel", 74, 77))
sketch5.addConstraint(Sketcher.Constraint("Horizontal", 1, 2, 6, 2))
sketch5.addConstraint(Sketcher.Constraint("Horizontal", 7, 2, 12, 2))
sketch5.addConstraint(Sketcher.Constraint("Horizontal", 13, 2, 18, 2))
sketch5.addConstraint(Sketcher.Constraint("Horizontal", 26, 2, 29, 2))
sketch5.addConstraint(Sketcher.Constraint("Horizontal", 25, 2, 30, 2))
sketch5.addConstraint(Sketcher.Constraint("Horizontal", 29, 2, 32, 2))
sketch5.addConstraint(Sketcher.Constraint("Horizontal", 28, 2, 33, 2))
sketch5.addConstraint(Sketcher.Constraint("Horizontal", 32, 2, 35, 2))
sketch5.addConstraint(Sketcher.Constraint("Horizontal", 31, 2, 36, 2))
sketch5.addConstraint(Sketcher.Constraint("Horizontal", 35, 2, 38, 2))
sketch5.addConstraint(Sketcher.Constraint("Horizontal", 34, 2, 39, 2))
sketch5.addConstraint(Sketcher.Constraint("Horizontal", 38, 2, 41, 2))
sketch5.addConstraint(Sketcher.Constraint("Horizontal", 19, 2, 42, 2))
sketch5.addConstraint(Sketcher.Constraint("Horizontal", 37, 2, 48, 2))
sketch5.addConstraint(Sketcher.Constraint("Horizontal", 41, 2, 50, 2))
sketch5.addConstraint(Sketcher.Constraint("Horizontal", 40, 2, 51, 2))
sketch5.addConstraint(Sketcher.Constraint("Horizontal", 50, 2, 53, 2))
sketch5.addConstraint(Sketcher.Constraint("Vertical", 25, 2, 27, 2))
sketch5.addConstraint(Sketcher.Constraint("Equal", 4, 7))
sketch5.addConstraint(Sketcher.Constraint("Equal", 10, 13))
sketch5.addConstraint(Sketcher.Constraint("Equal", 16, 19))
sketch5.addConstraint(Sketcher.Constraint("Equal", 28, 31))
sketch5.addConstraint(Sketcher.Constraint("Equal", 34, 37))
sketch5.addConstraint(Sketcher.Constraint("Equal", 22, 43))
sketch5.addConstraint(Sketcher.Constraint("Equal", 40, 49))
sketch5.addConstraint(Sketcher.Constraint("Angle", 0, Q("120 deg")))
sketch5.addConstraint(Sketcher.Constraint("DistanceY", -1, 1, 0, 2, Q("10 mm")))
sketch5.addConstraint(Sketcher.Constraint("DistanceY", -1, 1, 26, 2, Q("16 mm")))
sketch5.addConstraint(Sketcher.Constraint("DistanceX", -1, 1, 5, 2, Q("223.795 mm")))
sketch5.addConstraint(Sketcher.Constraint("DistanceX", -1, 1, 11, 2, Q("191.795 mm")))
sketch5.addConstraint(Sketcher.Constraint("DistanceX", -1, 1, 17, 2, Q("255.795 mm")))
sketch5.addConstraint(Sketcher.Constraint("DistanceX", -1, 1, 23, 2, Q("287.795 mm")))
sketch5.addConstraint(Sketcher.Constraint("DistanceX", -1, 1, 47, 2, Q("319.795 mm")))
sketch5.addConstraint(Sketcher.Constraint("DistanceX", 1, 2, 1, 1, Q("11.547005 mm")))
sketch5.addConstraint(Sketcher.Constraint("DistanceX", 25, 2, 25, 1, Q("5.617783 mm")))
sketch5.addConstraint(Sketcher.Constraint("DistanceX", -1, 1, 26, 2, Q("222.630212 mm")))
sketch5.addConstraint(Sketcher.Constraint("DistanceX", -1, 1, 32, 2, Q("190.630212 mm")))
sketch5.addConstraint(Sketcher.Constraint("DistanceX", -1, 1, 38, 2, Q("254.630212 mm")))
sketch5.addConstraint(Sketcher.Constraint("DistanceX", -1, 1, 50, 2, Q("286.630212 mm")))
sketch5.addConstraint(Sketcher.Constraint("Distance", 24, Q("5.617783 mm")))
pocket4 = body.newObject("PartDesign::Pocket", "Pocket003")
pocket4.Profile = sketch5
pocket4.Length = 10

doc.recompute()
